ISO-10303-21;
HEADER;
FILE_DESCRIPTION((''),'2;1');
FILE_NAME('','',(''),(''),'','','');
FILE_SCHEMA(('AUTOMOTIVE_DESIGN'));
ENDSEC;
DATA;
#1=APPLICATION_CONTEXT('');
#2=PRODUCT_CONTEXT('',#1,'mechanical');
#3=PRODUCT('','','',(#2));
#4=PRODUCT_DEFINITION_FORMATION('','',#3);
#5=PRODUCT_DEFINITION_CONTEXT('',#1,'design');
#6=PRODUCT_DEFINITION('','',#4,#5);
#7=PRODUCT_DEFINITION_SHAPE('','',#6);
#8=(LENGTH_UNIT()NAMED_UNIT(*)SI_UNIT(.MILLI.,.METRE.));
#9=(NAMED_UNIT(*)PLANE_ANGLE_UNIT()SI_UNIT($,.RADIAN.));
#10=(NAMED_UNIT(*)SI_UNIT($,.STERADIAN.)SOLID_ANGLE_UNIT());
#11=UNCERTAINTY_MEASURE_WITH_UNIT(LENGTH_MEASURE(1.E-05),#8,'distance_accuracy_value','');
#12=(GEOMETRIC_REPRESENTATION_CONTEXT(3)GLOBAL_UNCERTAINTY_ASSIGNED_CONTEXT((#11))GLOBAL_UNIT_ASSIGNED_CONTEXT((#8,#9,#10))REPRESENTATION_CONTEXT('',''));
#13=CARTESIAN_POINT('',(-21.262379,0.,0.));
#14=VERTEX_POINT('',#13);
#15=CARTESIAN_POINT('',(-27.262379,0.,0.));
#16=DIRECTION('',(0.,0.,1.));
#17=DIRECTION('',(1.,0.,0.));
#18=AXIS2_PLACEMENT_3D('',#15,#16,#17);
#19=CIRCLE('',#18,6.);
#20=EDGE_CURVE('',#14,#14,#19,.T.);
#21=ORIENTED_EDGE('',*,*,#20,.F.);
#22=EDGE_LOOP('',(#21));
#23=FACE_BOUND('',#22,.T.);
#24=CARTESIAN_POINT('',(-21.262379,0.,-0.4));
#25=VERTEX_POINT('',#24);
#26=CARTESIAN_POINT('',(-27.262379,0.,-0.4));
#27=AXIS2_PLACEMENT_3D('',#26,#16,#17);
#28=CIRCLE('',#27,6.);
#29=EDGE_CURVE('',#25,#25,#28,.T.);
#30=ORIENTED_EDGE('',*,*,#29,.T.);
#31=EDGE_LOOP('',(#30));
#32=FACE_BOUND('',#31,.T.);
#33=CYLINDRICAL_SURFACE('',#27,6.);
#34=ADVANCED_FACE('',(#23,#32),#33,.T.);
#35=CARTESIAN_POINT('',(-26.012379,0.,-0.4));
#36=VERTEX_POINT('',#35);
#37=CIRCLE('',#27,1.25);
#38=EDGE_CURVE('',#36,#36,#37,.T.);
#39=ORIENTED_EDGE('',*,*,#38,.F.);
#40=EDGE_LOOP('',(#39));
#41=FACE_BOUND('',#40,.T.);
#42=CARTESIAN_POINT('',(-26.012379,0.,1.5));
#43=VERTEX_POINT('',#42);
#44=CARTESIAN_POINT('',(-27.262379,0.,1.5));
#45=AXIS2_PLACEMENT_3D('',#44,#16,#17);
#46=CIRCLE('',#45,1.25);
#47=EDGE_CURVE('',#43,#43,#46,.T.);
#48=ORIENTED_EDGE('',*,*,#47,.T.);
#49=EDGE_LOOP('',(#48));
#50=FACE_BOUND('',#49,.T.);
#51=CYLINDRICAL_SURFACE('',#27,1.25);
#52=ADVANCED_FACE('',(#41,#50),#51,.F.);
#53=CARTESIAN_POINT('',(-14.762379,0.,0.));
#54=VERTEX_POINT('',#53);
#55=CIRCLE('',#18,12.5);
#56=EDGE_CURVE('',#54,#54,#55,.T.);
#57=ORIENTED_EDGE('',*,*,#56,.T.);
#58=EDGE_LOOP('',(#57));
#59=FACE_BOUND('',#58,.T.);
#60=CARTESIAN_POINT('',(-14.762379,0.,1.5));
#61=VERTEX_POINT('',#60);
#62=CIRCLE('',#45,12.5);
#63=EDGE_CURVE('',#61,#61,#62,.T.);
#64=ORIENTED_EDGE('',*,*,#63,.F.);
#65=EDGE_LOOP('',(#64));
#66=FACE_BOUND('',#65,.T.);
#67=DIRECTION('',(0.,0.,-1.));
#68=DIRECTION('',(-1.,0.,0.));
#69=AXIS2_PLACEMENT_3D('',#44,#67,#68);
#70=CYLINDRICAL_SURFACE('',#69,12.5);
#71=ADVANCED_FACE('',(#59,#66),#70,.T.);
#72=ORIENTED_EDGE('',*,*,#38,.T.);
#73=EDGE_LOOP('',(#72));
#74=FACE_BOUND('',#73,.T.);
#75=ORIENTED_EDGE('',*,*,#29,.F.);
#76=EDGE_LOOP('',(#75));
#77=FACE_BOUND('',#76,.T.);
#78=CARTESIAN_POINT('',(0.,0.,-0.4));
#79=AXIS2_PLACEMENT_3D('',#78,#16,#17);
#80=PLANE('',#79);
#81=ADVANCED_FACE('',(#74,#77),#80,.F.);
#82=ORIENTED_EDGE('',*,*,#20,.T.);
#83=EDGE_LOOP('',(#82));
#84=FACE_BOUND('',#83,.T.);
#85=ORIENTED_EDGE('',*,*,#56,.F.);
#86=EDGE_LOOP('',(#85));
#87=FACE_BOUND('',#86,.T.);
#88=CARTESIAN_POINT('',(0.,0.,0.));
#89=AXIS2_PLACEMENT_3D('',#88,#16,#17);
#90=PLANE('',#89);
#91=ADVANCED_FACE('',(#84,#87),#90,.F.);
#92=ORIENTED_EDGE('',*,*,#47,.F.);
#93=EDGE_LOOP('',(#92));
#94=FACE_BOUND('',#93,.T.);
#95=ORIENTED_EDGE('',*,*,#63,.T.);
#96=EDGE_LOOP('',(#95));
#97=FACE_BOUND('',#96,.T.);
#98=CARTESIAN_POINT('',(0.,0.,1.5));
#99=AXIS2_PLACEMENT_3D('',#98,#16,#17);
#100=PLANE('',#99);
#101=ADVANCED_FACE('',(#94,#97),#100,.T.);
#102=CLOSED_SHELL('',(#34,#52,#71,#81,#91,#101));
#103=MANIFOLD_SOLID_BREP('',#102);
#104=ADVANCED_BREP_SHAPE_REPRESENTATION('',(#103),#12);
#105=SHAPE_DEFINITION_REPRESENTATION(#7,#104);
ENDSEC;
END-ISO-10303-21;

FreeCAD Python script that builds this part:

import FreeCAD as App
import Part
import Sketcher
from FreeCAD import Vector

doc = App.newDocument("Part")
params = doc.addObject("Spreadsheet::Sheet", "Params")
for row, (alias, value) in enumerate([
    ("sketch1_diameter", "12 mm"),
    ("sketch1_diameter2", "2.5 mm"),
    ("pad1_length", "0.4 mm"),
    ("sketch2_diameter", "25 mm"),
    ("sketch2_diameter2", "2.5 mm"),
    ("pad2_length", "1.5 mm"),
], start=1):
    params.set(f"A{row}", alias)
    params.set(f"B{row}", "=" + value)
    params.setAlias(f"B{row}", alias)

body = doc.addObject("PartDesign::Body", "Body")

sketch1 = doc.addObject("Sketcher::SketchObject", "Sketch")
body.addObject(sketch1)
sketch1.AttachmentSupport = (doc.XY_Plane, [""])
sketch1.MapMode = "FlatFace"
sketch1.addGeometry(Part.Circle(Vector(-27.3, 0, 0), Vector(0, 0, 1), 6), False)
sketch1.addGeometry(Part.Circle(Vector(-27.3, 0, 0), Vector(0, 0, 1), 1.2), False)
sketch1.addConstraint(Sketcher.Constraint("Coincident", 1, 3, 0, 3))
sketch1.addConstraint(Sketcher.Constraint("PointOnObject", 0, 3, -1))
sketch1.addConstraint(Sketcher.Constraint("Diameter", 0, 12.0))
sketch1.addConstraint(Sketcher.Constraint("Diameter", 1, 2.5))
sketch1.addConstraint(Sketcher.Constraint("DistanceX", 0, 3, -1, 1, 27.262379))
sketch1.setExpression("Constraints[2]", "Params.sketch1_diameter")
sketch1.setExpression("Constraints[3]", "Params.sketch1_diameter2")
pad1 = doc.addObject("PartDesign::Pad", "Pad")
body.addObject(pad1)
pad1.Profile = sketch1
pad1.setExpression("Length", "Params.pad1_length")
pad1.Reversed = True

sketch2 = doc.addObject("Sketcher::SketchObject", "Sketch001")
body.addObject(sketch2)
sketch2.AttachmentSupport = (doc.XY_Plane, [""])
sketch2.MapMode = "FlatFace"
sketch2.addGeometry(Part.Circle(Vector(-27.3, 0, 0), Vector(0, 0, 1), 12.5), False)
sketch2.addGeometry(Part.Circle(Vector(-27.3, 0, 0), Vector(0, 0, 1), 1.2), False)
sketch2.addConstraint(Sketcher.Constraint("Coincident", 1, 3, 0, 3))
sketch2.addConstraint(Sketcher.Constraint("PointOnObject", 0, 3, -1))
sketch2.addConstraint(Sketcher.Constraint("Diameter", 0, 25.0))
sketch2.addConstraint(Sketcher.Constraint("Diameter", 1, 2.5))
sketch2.addConstraint(Sketcher.Constraint("DistanceX", 0, 3, -1, 1, 27.262379))
sketch2.setExpression("Constraints[2]", "Params.sketch2_diameter")
sketch2.setExpression("Constraints[3]", "Params.sketch2_diameter2")
pad2 = doc.addObject("PartDesign::Pad", "Pad001")
body.addObject(pad2)
pad2.Profile = sketch2
pad2.setExpression("Length", "Params.pad2_length")

doc.recompute()
